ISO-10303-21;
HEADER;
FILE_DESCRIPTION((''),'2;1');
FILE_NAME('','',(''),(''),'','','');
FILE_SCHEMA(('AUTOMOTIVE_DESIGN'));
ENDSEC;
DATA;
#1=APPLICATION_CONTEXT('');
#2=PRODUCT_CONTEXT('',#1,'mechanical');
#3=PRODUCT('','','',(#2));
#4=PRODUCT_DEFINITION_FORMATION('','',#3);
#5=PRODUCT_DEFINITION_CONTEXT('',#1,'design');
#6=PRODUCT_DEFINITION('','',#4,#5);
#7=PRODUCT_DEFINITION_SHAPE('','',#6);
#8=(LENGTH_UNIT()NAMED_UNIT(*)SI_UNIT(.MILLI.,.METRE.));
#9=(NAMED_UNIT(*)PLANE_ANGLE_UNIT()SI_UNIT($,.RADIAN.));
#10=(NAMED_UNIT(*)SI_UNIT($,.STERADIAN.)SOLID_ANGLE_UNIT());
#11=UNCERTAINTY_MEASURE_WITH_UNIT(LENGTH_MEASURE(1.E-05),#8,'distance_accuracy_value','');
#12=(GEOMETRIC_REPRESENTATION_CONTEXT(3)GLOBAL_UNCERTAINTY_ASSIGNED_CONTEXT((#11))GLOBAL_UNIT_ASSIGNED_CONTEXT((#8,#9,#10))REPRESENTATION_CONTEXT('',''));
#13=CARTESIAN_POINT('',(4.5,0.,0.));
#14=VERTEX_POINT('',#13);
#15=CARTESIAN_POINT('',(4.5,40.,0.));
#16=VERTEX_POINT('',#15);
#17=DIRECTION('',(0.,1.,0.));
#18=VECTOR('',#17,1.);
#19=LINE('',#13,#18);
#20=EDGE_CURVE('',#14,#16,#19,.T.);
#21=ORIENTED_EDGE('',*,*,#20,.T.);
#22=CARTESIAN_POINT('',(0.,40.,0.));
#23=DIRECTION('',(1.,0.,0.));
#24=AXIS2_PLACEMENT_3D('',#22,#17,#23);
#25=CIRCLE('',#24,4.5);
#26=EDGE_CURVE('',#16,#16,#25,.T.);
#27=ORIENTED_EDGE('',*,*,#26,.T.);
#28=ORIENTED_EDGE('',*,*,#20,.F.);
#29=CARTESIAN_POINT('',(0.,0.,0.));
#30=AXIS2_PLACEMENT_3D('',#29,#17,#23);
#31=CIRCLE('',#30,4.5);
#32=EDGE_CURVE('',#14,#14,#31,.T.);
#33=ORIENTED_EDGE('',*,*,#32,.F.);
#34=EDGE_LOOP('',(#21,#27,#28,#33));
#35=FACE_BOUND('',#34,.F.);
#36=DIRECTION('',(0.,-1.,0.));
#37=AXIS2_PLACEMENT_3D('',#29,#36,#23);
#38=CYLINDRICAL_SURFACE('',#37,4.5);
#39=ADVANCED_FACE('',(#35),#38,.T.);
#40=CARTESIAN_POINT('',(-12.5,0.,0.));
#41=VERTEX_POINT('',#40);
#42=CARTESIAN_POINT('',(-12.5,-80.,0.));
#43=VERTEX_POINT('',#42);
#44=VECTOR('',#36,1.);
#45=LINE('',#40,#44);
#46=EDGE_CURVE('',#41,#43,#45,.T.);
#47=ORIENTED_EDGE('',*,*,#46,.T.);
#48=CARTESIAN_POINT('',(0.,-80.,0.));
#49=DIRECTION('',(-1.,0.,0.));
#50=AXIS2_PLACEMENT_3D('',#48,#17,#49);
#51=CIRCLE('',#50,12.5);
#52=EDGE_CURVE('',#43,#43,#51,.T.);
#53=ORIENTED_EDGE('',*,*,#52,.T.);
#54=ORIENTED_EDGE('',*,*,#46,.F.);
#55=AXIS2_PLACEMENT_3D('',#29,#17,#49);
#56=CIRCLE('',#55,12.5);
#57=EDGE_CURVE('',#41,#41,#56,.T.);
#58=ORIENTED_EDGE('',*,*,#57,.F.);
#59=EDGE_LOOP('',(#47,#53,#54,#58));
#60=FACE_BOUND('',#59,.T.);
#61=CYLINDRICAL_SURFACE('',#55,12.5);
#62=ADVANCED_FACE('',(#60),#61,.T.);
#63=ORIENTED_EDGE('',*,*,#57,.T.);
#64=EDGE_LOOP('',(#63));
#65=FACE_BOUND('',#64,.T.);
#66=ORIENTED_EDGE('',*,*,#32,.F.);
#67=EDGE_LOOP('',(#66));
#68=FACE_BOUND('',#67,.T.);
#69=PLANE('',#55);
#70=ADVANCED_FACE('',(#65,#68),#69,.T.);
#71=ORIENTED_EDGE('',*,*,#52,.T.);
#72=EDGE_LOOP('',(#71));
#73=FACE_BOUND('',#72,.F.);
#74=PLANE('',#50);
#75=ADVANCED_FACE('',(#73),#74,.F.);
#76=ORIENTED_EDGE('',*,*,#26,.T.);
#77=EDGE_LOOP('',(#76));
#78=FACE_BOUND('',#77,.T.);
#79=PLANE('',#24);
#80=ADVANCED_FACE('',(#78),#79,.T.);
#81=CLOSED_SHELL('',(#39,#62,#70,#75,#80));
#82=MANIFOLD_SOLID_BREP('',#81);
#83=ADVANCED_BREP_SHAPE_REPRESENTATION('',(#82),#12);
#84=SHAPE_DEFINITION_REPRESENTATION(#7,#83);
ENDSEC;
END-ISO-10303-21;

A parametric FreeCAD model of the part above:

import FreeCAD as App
import Part
import Sketcher

V = App.Vector
Q = App.Units.Quantity

doc = App.newDocument("Part")
body = doc.addObject("PartDesign::Body", "Body")

# Sketch on XZ plane
sketch1 = body.newObject("Sketcher::SketchObject", "Sketch")
sketch1.AttachmentSupport = (doc.getObject("XZ_Plane"), [""])
sketch1.MapMode = "FlatFace"
sketch1.addGeometry(Part.Circle(V(0, 0, 0), V(0, 0, 1), 12), False)
sketch1.addConstraint([
    Sketcher.Constraint("Coincident", 0, 3, -1, 1),
    Sketcher.Constraint("Diameter", 0, Q("25 mm")),
])
pad1 = body.newObject("PartDesign::Pad", "Pad")
pad1.Profile = sketch1
pad1.Length = 80

# Sketch on XZ plane
sketch2 = body.newObject("Sketcher::SketchObject", "Sketch001")
sketch2.AttachmentSupport = (doc.getObject("XZ_Plane"), [""])
sketch2.MapMode = "FlatFace"
sketch2.addGeometry(Part.Circle(V(0, 0, 0), V(0, 0, 1), 4.5), False)
sketch2.addConstraint([
    Sketcher.Constraint("Coincident", 0, 3, -1, 1),
    Sketcher.Constraint("Diameter", 0, Q("9 mm")),
])
pad2 = body.newObject("PartDesign::Pad", "Pad001")
pad2.Profile = sketch2
pad2.Length = 40
pad2.Reversed = True

doc.recompute()
